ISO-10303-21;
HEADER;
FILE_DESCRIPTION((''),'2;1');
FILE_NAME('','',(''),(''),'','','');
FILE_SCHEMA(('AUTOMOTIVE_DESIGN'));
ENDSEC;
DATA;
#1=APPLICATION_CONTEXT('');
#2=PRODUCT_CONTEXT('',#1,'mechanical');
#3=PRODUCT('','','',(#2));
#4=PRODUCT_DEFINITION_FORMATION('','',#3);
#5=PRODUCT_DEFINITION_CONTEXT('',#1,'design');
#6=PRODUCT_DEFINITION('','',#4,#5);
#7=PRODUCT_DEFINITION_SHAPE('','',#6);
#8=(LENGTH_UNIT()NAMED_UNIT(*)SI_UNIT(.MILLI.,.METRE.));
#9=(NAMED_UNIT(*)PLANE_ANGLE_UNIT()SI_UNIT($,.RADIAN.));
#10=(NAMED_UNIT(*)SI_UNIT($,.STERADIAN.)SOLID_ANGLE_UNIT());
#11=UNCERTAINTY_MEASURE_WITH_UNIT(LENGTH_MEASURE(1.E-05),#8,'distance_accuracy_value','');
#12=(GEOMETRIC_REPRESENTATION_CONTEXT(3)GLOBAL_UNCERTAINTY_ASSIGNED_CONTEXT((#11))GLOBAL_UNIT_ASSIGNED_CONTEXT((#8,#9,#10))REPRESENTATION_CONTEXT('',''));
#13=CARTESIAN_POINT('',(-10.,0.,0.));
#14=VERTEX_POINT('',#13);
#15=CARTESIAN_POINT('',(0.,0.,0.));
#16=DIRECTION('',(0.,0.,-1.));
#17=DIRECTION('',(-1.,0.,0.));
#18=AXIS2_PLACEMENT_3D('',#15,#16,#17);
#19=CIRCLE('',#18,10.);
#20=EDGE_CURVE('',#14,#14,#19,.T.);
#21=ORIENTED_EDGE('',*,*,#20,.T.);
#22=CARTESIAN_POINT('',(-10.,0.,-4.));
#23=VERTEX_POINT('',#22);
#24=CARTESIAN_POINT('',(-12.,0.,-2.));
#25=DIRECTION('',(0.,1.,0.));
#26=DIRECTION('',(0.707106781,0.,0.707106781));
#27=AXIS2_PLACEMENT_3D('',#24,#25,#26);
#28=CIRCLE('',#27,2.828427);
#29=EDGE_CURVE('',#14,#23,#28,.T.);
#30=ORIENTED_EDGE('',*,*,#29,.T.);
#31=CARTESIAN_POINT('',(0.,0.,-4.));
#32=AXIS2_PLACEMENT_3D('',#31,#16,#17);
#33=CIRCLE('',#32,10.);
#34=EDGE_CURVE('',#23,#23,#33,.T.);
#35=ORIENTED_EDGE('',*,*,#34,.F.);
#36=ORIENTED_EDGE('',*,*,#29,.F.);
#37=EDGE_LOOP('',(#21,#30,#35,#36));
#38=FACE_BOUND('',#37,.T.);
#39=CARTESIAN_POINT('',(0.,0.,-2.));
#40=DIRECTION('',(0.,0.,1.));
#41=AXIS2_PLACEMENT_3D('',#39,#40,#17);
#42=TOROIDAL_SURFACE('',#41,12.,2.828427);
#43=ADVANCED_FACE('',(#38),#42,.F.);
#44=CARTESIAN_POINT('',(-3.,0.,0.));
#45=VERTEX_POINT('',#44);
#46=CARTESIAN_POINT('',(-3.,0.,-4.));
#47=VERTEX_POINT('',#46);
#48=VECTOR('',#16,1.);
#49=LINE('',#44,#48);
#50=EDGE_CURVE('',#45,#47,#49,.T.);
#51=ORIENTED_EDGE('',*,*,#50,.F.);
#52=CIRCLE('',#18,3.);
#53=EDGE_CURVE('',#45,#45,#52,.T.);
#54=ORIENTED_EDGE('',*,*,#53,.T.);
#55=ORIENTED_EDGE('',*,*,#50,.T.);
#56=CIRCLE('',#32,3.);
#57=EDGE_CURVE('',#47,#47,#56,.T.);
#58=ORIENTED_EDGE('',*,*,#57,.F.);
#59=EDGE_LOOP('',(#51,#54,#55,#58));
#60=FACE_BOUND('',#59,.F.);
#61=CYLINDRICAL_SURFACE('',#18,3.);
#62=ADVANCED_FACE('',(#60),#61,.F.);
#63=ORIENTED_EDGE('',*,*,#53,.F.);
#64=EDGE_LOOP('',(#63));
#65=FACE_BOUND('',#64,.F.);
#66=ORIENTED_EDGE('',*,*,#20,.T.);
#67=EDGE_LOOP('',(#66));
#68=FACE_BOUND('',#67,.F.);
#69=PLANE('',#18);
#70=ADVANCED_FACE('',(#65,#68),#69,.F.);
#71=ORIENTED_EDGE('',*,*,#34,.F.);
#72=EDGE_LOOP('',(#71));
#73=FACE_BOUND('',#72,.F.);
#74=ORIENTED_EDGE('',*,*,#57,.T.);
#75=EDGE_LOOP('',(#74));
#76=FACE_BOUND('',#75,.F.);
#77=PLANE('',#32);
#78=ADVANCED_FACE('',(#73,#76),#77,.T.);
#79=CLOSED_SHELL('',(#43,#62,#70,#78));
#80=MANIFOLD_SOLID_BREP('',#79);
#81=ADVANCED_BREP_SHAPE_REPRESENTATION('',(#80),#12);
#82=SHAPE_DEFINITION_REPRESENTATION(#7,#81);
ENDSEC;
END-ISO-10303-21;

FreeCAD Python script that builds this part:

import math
import FreeCAD as App
import Part
import Sketcher

V = App.Vector
Q = App.Units.Quantity

doc = App.newDocument("Part")
body = doc.addObject("PartDesign::Body", "Body")

# Sketch on XZ plane
sketch1 = body.newObject("Sketcher::SketchObject", "Sketch")
sketch1.AttachmentSupport = (doc.getObject("XZ_Plane"), [""])
sketch1.MapMode = "FlatFace"
sketch1.addGeometry(Part.ArcOfCircle(Part.Circle(V(-12, -2, 0), V(0, 0, 1), 2.8), math.radians(-45), math.radians(45)), False)
sketch1.addGeometry(Part.LineSegment(V(-10, 0, 0), V(-3, 0, 0)), False)
sketch1.addGeometry(Part.LineSegment(V(-3, 0, 0), V(-3, -4, 0)), False)
sketch1.addGeometry(Part.LineSegment(V(-3, -4, 0), V(-10, -4, 0)), False)
sketch1.addConstraint(Sketcher.Constraint("Coincident", 0, 2, 1, 1))
sketch1.addConstraint(Sketcher.Constraint("Coincident", 1, 2, 2, 1))
sketch1.addConstraint(Sketcher.Constraint("Coincident", 2, 2, 3, 1))
sketch1.addConstraint(Sketcher.Constraint("Coincident", 3, 2, 0, 1))
sketch1.addConstraint(Sketcher.Constraint("Horizontal", 1))
sketch1.addConstraint(Sketcher.Constraint("Vertical", 2))
sketch1.addConstraint(Sketcher.Constraint("Horizontal", 3))
sketch1.addConstraint(Sketcher.Constraint("PointOnObject", 0, 2, -1))
sketch1.addConstraint(Sketcher.Constraint("Vertical", 0, 2, 3, 2))
sketch1.addConstraint(Sketcher.Constraint("DistanceY", 2, 2, 2, 1, Q("4 mm")))
sketch1.addConstraint(Sketcher.Constraint("DistanceX", 0, 2, -1, 1, Q("10 mm")))
sketch1.addConstraint(Sketcher.Constraint("DistanceX", 1, 2, -1, 1, Q("3 mm")))
sketch1.addConstraint(Sketcher.Constraint("DistanceX", 0, 3, -1, 1, Q("12 mm")))
revolution = body.newObject("PartDesign::Revolution", "Revolution")
revolution.Profile = sketch1
revolution.ReferenceAxis = (sketch1, ["V_Axis"])
revolution.Angle = 360

doc.recompute()
